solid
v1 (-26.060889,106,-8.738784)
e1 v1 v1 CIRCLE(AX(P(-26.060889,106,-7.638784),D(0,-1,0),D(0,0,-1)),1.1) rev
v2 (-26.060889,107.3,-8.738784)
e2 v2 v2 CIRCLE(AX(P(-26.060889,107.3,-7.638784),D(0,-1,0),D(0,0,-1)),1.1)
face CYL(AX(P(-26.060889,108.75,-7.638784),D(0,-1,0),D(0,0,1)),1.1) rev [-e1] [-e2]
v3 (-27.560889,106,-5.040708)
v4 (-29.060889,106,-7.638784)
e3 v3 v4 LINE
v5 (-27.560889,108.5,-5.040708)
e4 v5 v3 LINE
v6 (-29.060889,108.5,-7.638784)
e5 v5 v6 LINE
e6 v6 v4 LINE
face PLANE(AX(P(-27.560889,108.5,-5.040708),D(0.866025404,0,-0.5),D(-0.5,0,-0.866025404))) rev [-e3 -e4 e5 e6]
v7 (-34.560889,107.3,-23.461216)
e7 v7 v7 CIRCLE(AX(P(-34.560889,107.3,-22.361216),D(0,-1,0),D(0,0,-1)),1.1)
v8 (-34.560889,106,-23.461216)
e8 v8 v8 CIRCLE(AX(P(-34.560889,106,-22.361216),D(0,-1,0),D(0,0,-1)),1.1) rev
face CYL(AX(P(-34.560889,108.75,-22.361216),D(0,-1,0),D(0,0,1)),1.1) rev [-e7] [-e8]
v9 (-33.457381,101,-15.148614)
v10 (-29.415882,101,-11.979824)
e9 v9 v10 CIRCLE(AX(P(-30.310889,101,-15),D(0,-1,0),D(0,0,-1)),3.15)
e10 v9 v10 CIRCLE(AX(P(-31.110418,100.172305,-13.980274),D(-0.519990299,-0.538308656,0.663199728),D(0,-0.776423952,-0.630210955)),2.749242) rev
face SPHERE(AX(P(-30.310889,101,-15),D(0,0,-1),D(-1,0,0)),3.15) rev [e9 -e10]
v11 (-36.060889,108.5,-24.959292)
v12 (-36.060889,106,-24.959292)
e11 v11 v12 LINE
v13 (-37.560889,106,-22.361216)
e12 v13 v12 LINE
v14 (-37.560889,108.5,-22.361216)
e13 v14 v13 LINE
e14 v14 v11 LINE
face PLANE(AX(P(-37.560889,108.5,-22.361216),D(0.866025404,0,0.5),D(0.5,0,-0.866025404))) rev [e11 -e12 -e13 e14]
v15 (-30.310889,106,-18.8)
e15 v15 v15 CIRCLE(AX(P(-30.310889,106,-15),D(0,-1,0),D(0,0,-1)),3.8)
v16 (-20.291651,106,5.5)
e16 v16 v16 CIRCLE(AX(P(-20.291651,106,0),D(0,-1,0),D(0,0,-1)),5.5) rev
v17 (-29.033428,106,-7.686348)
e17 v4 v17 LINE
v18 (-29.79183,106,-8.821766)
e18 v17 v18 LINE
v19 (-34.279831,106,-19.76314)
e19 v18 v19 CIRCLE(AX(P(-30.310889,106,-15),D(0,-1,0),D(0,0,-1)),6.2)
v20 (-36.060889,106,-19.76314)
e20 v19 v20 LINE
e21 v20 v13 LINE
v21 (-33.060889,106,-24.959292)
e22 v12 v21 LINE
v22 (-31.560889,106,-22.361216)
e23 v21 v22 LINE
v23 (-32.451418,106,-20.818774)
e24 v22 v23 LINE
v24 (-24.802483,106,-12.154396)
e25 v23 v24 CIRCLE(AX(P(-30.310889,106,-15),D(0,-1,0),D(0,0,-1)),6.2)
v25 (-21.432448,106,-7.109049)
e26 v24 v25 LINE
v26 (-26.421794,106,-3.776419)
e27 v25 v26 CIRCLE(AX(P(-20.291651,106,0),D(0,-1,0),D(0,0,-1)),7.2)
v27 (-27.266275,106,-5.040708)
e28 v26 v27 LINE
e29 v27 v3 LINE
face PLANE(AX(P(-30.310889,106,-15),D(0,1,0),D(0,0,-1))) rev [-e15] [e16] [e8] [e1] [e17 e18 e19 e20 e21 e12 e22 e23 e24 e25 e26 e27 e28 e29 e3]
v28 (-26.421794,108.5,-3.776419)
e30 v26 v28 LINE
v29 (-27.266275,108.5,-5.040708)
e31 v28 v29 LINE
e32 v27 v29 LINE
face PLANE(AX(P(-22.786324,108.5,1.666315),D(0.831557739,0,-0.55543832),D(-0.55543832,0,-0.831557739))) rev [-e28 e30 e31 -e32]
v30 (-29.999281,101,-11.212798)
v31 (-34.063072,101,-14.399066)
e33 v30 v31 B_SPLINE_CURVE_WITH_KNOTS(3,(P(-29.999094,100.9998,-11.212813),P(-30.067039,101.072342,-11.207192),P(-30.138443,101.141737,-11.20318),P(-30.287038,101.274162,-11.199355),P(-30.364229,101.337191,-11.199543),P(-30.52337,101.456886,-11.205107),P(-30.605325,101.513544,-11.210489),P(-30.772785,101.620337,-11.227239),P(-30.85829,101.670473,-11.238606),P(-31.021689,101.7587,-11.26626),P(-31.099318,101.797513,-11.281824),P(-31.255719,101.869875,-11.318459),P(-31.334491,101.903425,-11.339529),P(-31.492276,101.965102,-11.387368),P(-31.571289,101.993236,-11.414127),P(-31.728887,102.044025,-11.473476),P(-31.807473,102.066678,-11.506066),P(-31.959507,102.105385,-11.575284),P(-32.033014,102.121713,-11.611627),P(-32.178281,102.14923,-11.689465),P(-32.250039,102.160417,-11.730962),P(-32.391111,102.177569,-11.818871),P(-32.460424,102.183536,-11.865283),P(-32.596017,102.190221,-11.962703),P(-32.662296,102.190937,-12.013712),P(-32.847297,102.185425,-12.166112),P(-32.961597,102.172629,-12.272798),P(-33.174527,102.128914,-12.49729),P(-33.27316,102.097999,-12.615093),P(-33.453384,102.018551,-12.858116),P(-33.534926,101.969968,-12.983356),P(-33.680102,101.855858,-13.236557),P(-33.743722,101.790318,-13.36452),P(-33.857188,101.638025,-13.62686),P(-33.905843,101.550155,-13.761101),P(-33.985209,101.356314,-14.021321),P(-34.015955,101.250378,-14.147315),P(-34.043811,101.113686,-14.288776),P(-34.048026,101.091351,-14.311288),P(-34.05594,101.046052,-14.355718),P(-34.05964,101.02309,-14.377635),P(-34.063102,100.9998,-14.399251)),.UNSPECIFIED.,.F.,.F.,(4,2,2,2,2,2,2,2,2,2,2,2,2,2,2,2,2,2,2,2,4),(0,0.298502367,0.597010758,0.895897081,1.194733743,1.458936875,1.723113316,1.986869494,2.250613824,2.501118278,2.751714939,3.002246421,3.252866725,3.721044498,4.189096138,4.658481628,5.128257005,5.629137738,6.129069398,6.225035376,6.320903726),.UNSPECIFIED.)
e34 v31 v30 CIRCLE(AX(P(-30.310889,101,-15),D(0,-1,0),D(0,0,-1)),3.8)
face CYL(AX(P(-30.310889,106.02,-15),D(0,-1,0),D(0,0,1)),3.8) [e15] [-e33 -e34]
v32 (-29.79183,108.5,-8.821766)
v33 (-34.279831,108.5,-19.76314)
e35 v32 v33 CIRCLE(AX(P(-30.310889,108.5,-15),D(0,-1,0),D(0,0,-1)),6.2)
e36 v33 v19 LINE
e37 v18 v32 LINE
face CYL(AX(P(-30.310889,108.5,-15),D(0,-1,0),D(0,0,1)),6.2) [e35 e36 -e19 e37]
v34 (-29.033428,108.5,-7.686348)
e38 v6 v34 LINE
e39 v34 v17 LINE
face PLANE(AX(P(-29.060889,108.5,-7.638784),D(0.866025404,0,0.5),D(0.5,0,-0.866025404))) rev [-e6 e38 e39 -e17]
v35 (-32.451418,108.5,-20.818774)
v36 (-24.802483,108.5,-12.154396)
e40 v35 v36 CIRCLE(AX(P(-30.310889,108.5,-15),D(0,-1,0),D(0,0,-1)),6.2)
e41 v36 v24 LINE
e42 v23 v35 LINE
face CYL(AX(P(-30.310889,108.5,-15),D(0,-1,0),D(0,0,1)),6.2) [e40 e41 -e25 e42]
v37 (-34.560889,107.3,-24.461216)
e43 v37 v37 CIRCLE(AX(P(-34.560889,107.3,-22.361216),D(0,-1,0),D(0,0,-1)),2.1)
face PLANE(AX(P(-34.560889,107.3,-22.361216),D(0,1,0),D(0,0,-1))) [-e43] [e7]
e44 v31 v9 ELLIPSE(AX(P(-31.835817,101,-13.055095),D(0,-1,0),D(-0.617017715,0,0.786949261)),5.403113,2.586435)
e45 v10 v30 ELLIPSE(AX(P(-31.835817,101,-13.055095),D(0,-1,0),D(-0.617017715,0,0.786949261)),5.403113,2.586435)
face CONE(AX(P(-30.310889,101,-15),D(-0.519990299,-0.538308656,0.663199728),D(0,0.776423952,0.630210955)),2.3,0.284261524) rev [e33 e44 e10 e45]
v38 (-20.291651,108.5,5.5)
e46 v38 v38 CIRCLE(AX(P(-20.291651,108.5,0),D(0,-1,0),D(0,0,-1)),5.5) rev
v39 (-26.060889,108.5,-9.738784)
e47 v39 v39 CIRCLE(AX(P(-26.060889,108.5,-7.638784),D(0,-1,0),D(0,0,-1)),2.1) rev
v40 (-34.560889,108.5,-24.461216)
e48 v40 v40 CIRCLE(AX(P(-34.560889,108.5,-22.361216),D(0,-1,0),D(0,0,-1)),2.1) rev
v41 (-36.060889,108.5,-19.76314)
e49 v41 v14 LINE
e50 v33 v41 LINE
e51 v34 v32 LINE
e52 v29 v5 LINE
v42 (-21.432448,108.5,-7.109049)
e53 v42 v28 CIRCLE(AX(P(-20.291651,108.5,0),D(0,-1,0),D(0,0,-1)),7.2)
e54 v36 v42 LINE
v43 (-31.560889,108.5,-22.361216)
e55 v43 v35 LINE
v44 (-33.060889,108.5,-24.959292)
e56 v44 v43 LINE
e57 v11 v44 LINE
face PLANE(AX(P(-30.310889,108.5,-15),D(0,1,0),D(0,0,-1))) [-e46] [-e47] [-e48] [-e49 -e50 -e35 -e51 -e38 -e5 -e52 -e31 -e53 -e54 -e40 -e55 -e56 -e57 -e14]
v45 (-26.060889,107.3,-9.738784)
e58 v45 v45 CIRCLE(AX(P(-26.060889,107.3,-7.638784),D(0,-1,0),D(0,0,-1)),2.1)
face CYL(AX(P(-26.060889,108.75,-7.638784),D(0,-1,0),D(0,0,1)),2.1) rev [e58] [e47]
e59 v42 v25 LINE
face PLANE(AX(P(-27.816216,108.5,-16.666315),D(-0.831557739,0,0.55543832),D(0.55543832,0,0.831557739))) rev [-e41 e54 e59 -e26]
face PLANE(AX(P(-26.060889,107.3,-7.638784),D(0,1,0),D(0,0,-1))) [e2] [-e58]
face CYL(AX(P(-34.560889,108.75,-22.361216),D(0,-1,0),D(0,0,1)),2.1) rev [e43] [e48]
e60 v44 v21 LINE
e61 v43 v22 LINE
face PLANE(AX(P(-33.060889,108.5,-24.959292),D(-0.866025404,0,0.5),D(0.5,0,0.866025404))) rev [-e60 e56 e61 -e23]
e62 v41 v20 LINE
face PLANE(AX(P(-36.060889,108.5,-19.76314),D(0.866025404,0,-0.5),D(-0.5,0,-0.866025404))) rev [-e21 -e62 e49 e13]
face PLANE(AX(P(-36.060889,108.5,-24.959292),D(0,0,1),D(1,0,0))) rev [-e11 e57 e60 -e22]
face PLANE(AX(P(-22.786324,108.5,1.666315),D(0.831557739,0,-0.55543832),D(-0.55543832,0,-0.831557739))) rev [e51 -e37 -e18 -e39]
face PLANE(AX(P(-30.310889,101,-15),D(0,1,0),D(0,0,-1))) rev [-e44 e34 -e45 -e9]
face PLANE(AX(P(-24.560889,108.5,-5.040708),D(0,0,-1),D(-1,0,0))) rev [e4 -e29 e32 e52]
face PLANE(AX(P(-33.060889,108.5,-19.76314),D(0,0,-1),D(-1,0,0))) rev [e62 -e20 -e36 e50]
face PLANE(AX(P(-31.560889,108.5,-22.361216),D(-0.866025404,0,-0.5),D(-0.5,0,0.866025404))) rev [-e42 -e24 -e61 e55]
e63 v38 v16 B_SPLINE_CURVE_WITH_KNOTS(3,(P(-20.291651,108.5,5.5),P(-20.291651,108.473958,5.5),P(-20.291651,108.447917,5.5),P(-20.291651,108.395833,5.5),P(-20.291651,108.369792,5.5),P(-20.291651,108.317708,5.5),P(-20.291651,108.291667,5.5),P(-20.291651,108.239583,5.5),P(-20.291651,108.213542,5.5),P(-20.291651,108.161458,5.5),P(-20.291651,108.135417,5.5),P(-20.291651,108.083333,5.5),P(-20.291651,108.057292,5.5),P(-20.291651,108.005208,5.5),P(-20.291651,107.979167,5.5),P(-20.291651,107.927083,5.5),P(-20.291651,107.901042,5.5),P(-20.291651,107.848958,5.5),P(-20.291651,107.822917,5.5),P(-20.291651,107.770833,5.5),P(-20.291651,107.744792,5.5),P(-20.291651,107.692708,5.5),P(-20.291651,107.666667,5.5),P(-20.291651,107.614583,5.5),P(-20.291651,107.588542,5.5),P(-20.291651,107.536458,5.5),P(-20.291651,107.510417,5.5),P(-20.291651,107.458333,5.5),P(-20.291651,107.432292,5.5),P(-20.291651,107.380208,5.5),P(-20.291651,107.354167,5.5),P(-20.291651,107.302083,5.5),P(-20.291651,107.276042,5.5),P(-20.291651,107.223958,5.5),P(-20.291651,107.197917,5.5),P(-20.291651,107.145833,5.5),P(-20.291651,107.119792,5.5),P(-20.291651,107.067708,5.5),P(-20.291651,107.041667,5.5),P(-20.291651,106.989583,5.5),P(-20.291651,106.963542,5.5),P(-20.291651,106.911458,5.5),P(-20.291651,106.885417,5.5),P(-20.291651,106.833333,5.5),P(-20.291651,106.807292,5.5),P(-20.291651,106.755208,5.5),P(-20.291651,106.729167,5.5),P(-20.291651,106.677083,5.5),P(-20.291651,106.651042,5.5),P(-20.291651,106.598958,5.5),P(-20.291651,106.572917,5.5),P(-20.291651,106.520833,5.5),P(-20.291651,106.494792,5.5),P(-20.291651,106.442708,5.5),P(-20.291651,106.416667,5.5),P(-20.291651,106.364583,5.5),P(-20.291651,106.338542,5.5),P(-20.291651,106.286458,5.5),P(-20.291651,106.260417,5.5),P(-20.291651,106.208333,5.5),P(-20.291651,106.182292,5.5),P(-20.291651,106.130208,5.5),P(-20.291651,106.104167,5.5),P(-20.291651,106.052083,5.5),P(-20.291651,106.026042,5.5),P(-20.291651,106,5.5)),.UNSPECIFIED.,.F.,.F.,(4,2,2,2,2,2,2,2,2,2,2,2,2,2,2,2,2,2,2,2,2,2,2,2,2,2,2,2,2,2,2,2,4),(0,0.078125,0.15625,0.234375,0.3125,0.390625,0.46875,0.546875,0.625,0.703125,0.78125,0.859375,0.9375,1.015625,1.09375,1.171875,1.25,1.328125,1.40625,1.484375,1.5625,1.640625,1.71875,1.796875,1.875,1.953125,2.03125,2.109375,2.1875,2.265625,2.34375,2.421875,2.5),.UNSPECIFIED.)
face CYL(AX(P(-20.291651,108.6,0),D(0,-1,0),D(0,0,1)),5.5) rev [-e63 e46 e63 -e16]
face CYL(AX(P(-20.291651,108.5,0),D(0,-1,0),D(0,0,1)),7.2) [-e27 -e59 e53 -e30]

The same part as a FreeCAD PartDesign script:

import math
import FreeCAD as App
import Part
import Sketcher

V = App.Vector
Q = App.Units.Quantity


def add_polygon(sketch, points):
    """Adds a closed chain of lines whose ends are joined by coincident constraints."""
    first, n = sketch.GeometryCount, len(points)
    for a, b in zip(points, points[1:] + points[:1]):
        sketch.addGeometry(Part.LineSegment(App.Vector(*a, 0), App.Vector(*b, 0)), False)
    for i in range(n):
        sketch.addConstraint(Sketcher.Constraint("Coincident", first + i, 2, first + (i + 1) % n, 1))

doc = App.newDocument("Part")
body = doc.addObject("PartDesign::Body", "Body")

# Sketch on XZ plane
sketch1 = body.newObject("Sketcher::SketchObject", "Sketch")
sketch1.AttachmentSupport = (doc.getObject("XZ_Plane"), [""])
sketch1.MapMode = "FlatFace"
sketch1.AttachmentOffset = App.Placement(V(0, 0, 101), App.Rotation())
sketch1.addGeometry(Part.Circle(V(-30.3, -15, 0), V(0, 0, 1), 3.8), False)
sketch1.addConstraint(Sketcher.Constraint("Diameter", 0, Q("7.6 mm")))
sketch1.addConstraint(Sketcher.Constraint("DistanceY", 0, 3, -1, 1, Q("15 mm")))
sketch1.addConstraint(Sketcher.Constraint("DistanceX", 0, 3, -1, 1, Q("30.310889 mm")))
pad1 = body.newObject("PartDesign::Pad", "Pad")
pad1.Profile = sketch1
pad1.Length = 5.02

# Sketch on XZ plane
sketch2 = body.newObject("Sketcher::SketchObject", "Sketch001")
sketch2.AttachmentSupport = (doc.getObject("XZ_Plane"), [""])
sketch2.MapMode = "FlatFace"
sketch2.AttachmentOffset = App.Placement(V(0, 0, 106), App.Rotation())
sketch2.addGeometry(Part.Circle(V(-30, -15, 0), V(0, 0, 1), 6), False)
sketch2.addConstraint(Sketcher.Constraint("Diameter", 0, Q("12.4 mm")))
sketch2.addConstraint(Sketcher.Constraint("DistanceY", 0, 3, -1, 1, Q("15 mm")))
sketch2.addConstraint(Sketcher.Constraint("DistanceX", 0, 3, -1, 1, Q("30.310889 mm")))
pad2 = body.newObject("PartDesign::Pad", "Pad001")
pad2.Profile = sketch2
pad2.Length = 2.5

# Sketch on XZ plane
sketch3 = body.newObject("Sketcher::SketchObject", "Sketch002")
sketch3.AttachmentSupport = (doc.getObject("XZ_Plane"), [""])
sketch3.MapMode = "FlatFace"
sketch3.AttachmentOffset = App.Placement(V(0, 0, 106), App.Rotation())
add_polygon(sketch3, [(-31.6, -22.4), (-33.1, -19.8), (-36.1, -19.8), (-37.6, -22.4), (-36.1, -25), (-33.1, -25)])  # lines 0-5
sketch3.addConstraint(Sketcher.Constraint("Horizontal", 1))
sketch3.addConstraint(Sketcher.Constraint("Horizontal", 4))
sketch3.addConstraint(Sketcher.Constraint("Parallel", 0, 3))
sketch3.addConstraint(Sketcher.Constraint("Parallel", 2, 5))
sketch3.addConstraint(Sketcher.Constraint("Horizontal", 2, 2, 5, 2))
sketch3.addConstraint(Sketcher.Constraint("Vertical", 1, 2, 3, 2))
sketch3.addConstraint(Sketcher.Constraint("Vertical", 0, 2, 4, 2))
sketch3.addConstraint(Sketcher.Constraint("DistanceX", 1, 2, 1, 1, Q("3 mm")))
sketch3.addConstraint(Sketcher.Constraint("Angle", 0, Q("120 deg")))
sketch3.addConstraint(Sketcher.Constraint("Distance", 0, Q("3 mm")))
sketch3.addConstraint(Sketcher.Constraint("DistanceX", 0, 2, -1, 1, Q("33.060889 mm")))
sketch3.addConstraint(Sketcher.Constraint("DistanceY", 0, 2, -1, 1, Q("19.76314 mm")))
pad3 = body.newObject("PartDesign::Pad", "Pad002")
pad3.Profile = sketch3
pad3.Length = 2.5

# Sketch on XZ plane
sketch4 = body.newObject("Sketcher::SketchObject", "Sketch003")
sketch4.AttachmentSupport = (doc.getObject("XZ_Plane"), [""])
sketch4.MapMode = "FlatFace"
sketch4.AttachmentOffset = App.Placement(V(0, 0, 106), App.Rotation())
add_polygon(sketch4, [(-23.1, -7.6), (-24.6, -5), (-27.6, -5), (-29.1, -7.6), (-27.6, -10.2), (-24.6, -10.2)])  # lines 0-5
sketch4.addConstraint(Sketcher.Constraint("Horizontal", 1))
sketch4.addConstraint(Sketcher.Constraint("Horizontal", 4))
sketch4.addConstraint(Sketcher.Constraint("Parallel", 0, 3))
sketch4.addConstraint(Sketcher.Constraint("Parallel", 2, 5))
sketch4.addConstraint(Sketcher.Constraint("Horizontal", 2, 2, 5, 2))
sketch4.addConstraint(Sketcher.Constraint("Vertical", 1, 2, 3, 2))
sketch4.addConstraint(Sketcher.Constraint("Vertical", 0, 2, 4, 2))
sketch4.addConstraint(Sketcher.Constraint("DistanceX", 1, 2, 1, 1, Q("3 mm")))
sketch4.addConstraint(Sketcher.Constraint("Angle", 0, Q("120 deg")))
sketch4.addConstraint(Sketcher.Constraint("Distance", 0, Q("3 mm")))
sketch4.addConstraint(Sketcher.Constraint("DistanceX", 0, 2, -1, 1, Q("24.560889 mm")))
sketch4.addConstraint(Sketcher.Constraint("DistanceY", 3, 2, -1, 1, Q("10.23686 mm")))
pad4 = body.newObject("PartDesign::Pad", "Pad003")
pad4.Profile = sketch4
pad4.Length = 2.5

# Sketch on XZ plane
sketch5 = body.newObject("Sketcher::SketchObject", "Sketch004")
sketch5.AttachmentSupport = (doc.getObject("XZ_Plane"), [""])
sketch5.MapMode = "FlatFace"
sketch5.AttachmentOffset = App.Placement(V(0, 0, 101), App.Rotation())
sketch5.addGeometry(Part.LineSegment(V(-30.3, -11.8, 0), V(-30.3, -18.1, 0)), False)
sketch5.addGeometry(Part.ArcOfCircle(Part.Circle(V(-30.3, -15, 0), V(0, 0, 1), 3.1), math.radians(-90), math.radians(90)), False)
sketch5.addGeometry(Part.LineSegment(V(-30.3, -18.1, 0), V(-30.3, -11.8, 0)), True)  # axis
sketch5.addConstraint(Sketcher.Constraint("Coincident", 0, 1, 1, 2))
sketch5.addConstraint(Sketcher.Constraint("Coincident", 1, 1, 0, 2))
sketch5.addConstraint(Sketcher.Constraint("Vertical", 0))
sketch5.addConstraint(Sketcher.Constraint("Vertical", 2))
sketch5.addConstraint(Sketcher.Constraint("Coincident", 2, 1, 1, 1))
sketch5.addConstraint(Sketcher.Constraint("Vertical", 1, 3, 0, 1))
sketch5.addConstraint(Sketcher.Constraint("Equal", 0, 2))
sketch5.addConstraint(Sketcher.Constraint("Radius", 1, Q("3.15 mm")))
sketch5.addConstraint(Sketcher.Constraint("DistanceY", 1, 3, -1, 1, Q("15 mm")))
sketch5.addConstraint(Sketcher.Constraint("DistanceX", 1, 3, -1, 1, Q("30.310889 mm")))
groove = body.newObject("PartDesign::Groove", "Groove")
groove.Profile = sketch5
groove.ReferenceAxis = (sketch5, ["Axis0"])
groove.Angle = 360

# Sketch on XZ plane
sketch6 = body.newObject("Sketcher::SketchObject", "Sketch005")
sketch6.AttachmentSupport = (doc.getObject("XZ_Plane"), [""])
sketch6.MapMode = "FlatFace"
sketch6.AttachmentOffset = App.Placement(V(0, 0, 106), App.Rotation())
add_polygon(sketch6, [(-28, -17), (-18, -2), (-23, 2), (-33, -13)])  # lines 0-3
sketch6.addConstraint(Sketcher.Constraint("Perpendicular", 0, 1))
sketch6.addConstraint(Sketcher.Constraint("Perpendicular", 1, 2))
sketch6.addConstraint(Sketcher.Constraint("Perpendicular", 2, 3))
sketch6.addConstraint(Sketcher.Constraint("Distance", 1, Q("6 mm")))
sketch6.addConstraint(Sketcher.Constraint("DistanceY", 2, 2, 1, 2, Q("15 mm")))
sketch6.addConstraint(Sketcher.Constraint("DistanceX", 0, 2, -1, 1, Q("17.796978 mm")))
sketch6.addConstraint(Sketcher.Constraint("DistanceY", 0, 2, 1, 2, Q("3.33263 mm")))
sketch6.addConstraint(Sketcher.Constraint("DistanceY", 0, 2, -1, 1, Q("1.666315 mm")))
pad5 = body.newObject("PartDesign::Pad", "Pad004")
pad5.Profile = sketch6
pad5.Length = 2.5

# Sketch on XZ plane
sketch7 = body.newObject("Sketcher::SketchObject", "Sketch006")
sketch7.AttachmentSupport = (doc.getObject("XZ_Plane"), [""])
sketch7.MapMode = "FlatFace"
sketch7.AttachmentOffset = App.Placement(V(0, 0, 106), App.Rotation())
sketch7.addGeometry(Part.Circle(V(-20, 0, 0), V(0, 0, 1), 7), False)
sketch7.addConstraint(Sketcher.Constraint("PointOnObject", 0, 3, -1))
sketch7.addConstraint(Sketcher.Constraint("Diameter", 0, Q("14.4 mm")))
sketch7.addConstraint(Sketcher.Constraint("DistanceX", 0, 3, -1, 1, Q("20.291651 mm")))
pad6 = body.newObject("PartDesign::Pad", "Pad005")
pad6.Profile = sketch7
pad6.Length = 2.5

# Sketch on XZ plane
sketch8 = body.newObject("Sketcher::SketchObject", "Sketch007")
sketch8.AttachmentSupport = (doc.getObject("XZ_Plane"), [""])
sketch8.MapMode = "FlatFace"
sketch8.AttachmentOffset = App.Placement(V(0, 0, 105.9), App.Rotation())
sketch8.addGeometry(Part.Circle(V(-20, 0, 0), V(0, 0, 1), 6), False)
sketch8.addConstraint(Sketcher.Constraint("PointOnObject", 0, 3, -1))
sketch8.addConstraint(Sketcher.Constraint("Diameter", 0, Q("11 mm")))
sketch8.addConstraint(Sketcher.Constraint("DistanceX", 0, 3, -1, 1, Q("20.291651 mm")))
pocket1 = body.newObject("PartDesign::Pocket", "Pocket")
pocket1.Profile = sketch8
pocket1.Length = 2.7
pocket1.Reversed = True

# Sketch on XZ plane
sketch9 = body.newObject("Sketcher::SketchObject", "Sketch008")
sketch9.AttachmentSupport = (doc.getObject("XZ_Plane"), [""])
sketch9.MapMode = "FlatFace"
sketch9.AttachmentOffset = App.Placement(V(0, 0, 105), App.Rotation())
sketch9.addGeometry(Part.Circle(V(-34.6, -22.4, 0), V(0, 0, 1), 1.1), False)
sketch9.addConstraint(Sketcher.Constraint("Diameter", 0, Q("2.2 mm")))
sketch9.addConstraint(Sketcher.Constraint("DistanceX", 0, 3, -1, 1, Q("34.560889 mm")))
sketch9.addConstraint(Sketcher.Constraint("DistanceY", 0, 3, -1, 1, Q("22.361216 mm")))
pocket2 = body.newObject("PartDesign::Pocket", "Pocket001")
pocket2.Profile = sketch9
pocket2.Length = 3.75
pocket2.Reversed = True

# Sketch on XZ plane
sketch10 = body.newObject("Sketcher::SketchObject", "Sketch009")
sketch10.AttachmentSupport = (doc.getObject("XZ_Plane"), [""])
sketch10.MapMode = "FlatFace"
sketch10.AttachmentOffset = App.Placement(V(0, 0, 107.3), App.Rotation())
sketch10.addGeometry(Part.Circle(V(-34.6, -22.4, 0), V(0, 0, 1), 2.1), False)
sketch10.addConstraint(Sketcher.Constraint("Diameter", 0, Q("4.2 mm")))
sketch10.addConstraint(Sketcher.Constraint("DistanceX", 0, 3, -1, 1, Q("34.560889 mm")))
sketch10.addConstraint(Sketcher.Constraint("DistanceY", 0, 3, -1, 1, Q("22.361216 mm")))
pocket3 = body.newObject("PartDesign::Pocket", "Pocket002")
pocket3.Profile = sketch10
pocket3.Length = 1.45
pocket3.Reversed = True

# Sketch on XZ plane
sketch11 = body.newObject("Sketcher::SketchObject", "Sketch010")
sketch11.AttachmentSupport = (doc.getObject("XZ_Plane"), [""])
sketch11.MapMode = "FlatFace"
sketch11.AttachmentOffset = App.Placement(V(0, 0, 105), App.Rotation())
sketch11.addGeometry(Part.Circle(V(-26.1, -7.6, 0), V(0, 0, 1), 1.1), False)
sketch11.addConstraint(Sketcher.Constraint("Diameter", 0, Q("2.2 mm")))
sketch11.addConstraint(Sketcher.Constraint("DistanceX", 0, 3, -1, 1, Q("26.060889 mm")))
sketch11.addConstraint(Sketcher.Constraint("DistanceY", 0, 3, -1, 1, Q("7.638784 mm")))
pocket4 = body.newObject("PartDesign::Pocket", "Pocket003")
pocket4.Profile = sketch11
pocket4.Length = 3.75
pocket4.Reversed = True

# Sketch on XZ plane
sketch12 = body.newObject("Sketcher::SketchObject", "Sketch011")
sketch12.AttachmentSupport = (doc.getObject("XZ_Plane"), [""])
sketch12.MapMode = "FlatFace"
sketch12.AttachmentOffset = App.Placement(V(0, 0, 107.3), App.Rotation())
sketch12.addGeometry(Part.Circle(V(-26.1, -7.6, 0), V(0, 0, 1), 2.1), False)
sketch12.addConstraint(Sketcher.Constraint("Diameter", 0, Q("4.2 mm")))
sketch12.addConstraint(Sketcher.Constraint("DistanceX", 0, 3, -1, 1, Q("26.060889 mm")))
sketch12.addConstraint(Sketcher.Constraint("DistanceY", 0, 3, -1, 1, Q("7.638784 mm")))
pocket5 = body.newObject("PartDesign::Pocket", "Pocket004")
pocket5.Profile = sketch12
pocket5.Length = 1.45
pocket5.Reversed = True

# Sketch on an angled plane
sketch13 = body.newObject("Sketcher::SketchObject", "Sketch012")
sketch13.Placement = App.Placement(V(-55.559435, -21.315405, -26.260717), App.Rotation(V(0.376944076, 0.144614785, -0.914876892), V(-0.358194185, 0.93364711, 0), V(0.854172166, 0.327703583, 0.403732923), "ZXY"))
add_polygon(sketch13, [(-12.3, -83.4), (-10.7, -81.8), (-22.8, -61.1), (-29, -67.6)])  # lines 0-3
sketch13.addGeometry(Part.LineSegment(V(-12.3, -83.4, 0), V(-29, -67.6, 0)), True)  # axis
sketch13.addConstraint(Sketcher.Constraint("Coincident", 4, 1, 3, 2))
sketch13.addConstraint(Sketcher.Constraint("Coincident", 4, 2, 2, 2))
sketch13.addConstraint(Sketcher.Constraint("Parallel", 0, 2))
sketch13.addConstraint(Sketcher.Constraint("Perpendicular", 2, 3))
sketch13.addConstraint(Sketcher.Constraint("Distance", 3, Q("23 mm")))
sketch13.addConstraint(Sketcher.Constraint("Distance", 0, Q("2.3 mm")))
sketch13.addConstraint(Sketcher.Constraint("Distance", 2, Q("9.02 mm")))
sketch13.addConstraint(Sketcher.Constraint("DistanceX", 0, 2, -1, 1, Q("10.7241 mm")))
sketch13.addConstraint(Sketcher.Constraint("DistanceY", 3, 2, 2, 2, Q("15.8435 mm")))
sketch13.addConstraint(Sketcher.Constraint("DistanceY", 0, 2, -1, 1, Q("81.77389 mm")))
groove2 = body.newObject("PartDesign::Groove", "Groove001")
groove2.Profile = sketch13
groove2.ReferenceAxis = (sketch13, ["Axis0"])
groove2.Angle = 360
body2 = doc.addObject("PartDesign::Body", "Body001")
doc.recompute()

mirroring = doc.addObject("Part::Mirroring", "Mirroring")
mirroring.Source = body
mirroring.Base = V(0, 0, 0)
mirroring.Normal = V(0, -1, 0)
body2.BaseFeature = mirroring
doc.recompute()
body.Visibility = False
mirroring.Visibility = False

doc.recompute()
